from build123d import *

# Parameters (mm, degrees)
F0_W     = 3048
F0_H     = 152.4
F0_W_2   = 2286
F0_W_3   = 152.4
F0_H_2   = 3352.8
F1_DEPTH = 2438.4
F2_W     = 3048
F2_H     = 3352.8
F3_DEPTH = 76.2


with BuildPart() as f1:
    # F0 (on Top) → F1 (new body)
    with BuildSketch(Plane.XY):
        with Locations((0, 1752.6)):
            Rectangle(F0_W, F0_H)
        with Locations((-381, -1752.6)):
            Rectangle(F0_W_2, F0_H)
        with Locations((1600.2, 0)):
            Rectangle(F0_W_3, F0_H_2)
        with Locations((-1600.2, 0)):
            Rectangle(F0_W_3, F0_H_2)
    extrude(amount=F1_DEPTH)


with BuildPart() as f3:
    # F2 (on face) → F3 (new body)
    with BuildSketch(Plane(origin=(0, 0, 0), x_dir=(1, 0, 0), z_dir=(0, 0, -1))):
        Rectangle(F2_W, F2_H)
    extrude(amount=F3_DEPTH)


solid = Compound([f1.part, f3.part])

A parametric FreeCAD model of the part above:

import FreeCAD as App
import Part
import Sketcher
from FreeCAD import Vector
Q = App.Units.Quantity


def add_polygon(sketch, points):
    """Adds a closed chain of lines whose ends are joined by coincident constraints."""
    first, n = sketch.GeometryCount, len(points)
    for a, b in zip(points, points[1:] + points[:1]):
        sketch.addGeometry(Part.LineSegment(App.Vector(*a, 0), App.Vector(*b, 0)), False)
    for i in range(n):
        sketch.addConstraint(Sketcher.Constraint("Coincident", first + i, 2, first + (i + 1) % n, 1))

doc = App.newDocument("Part")
params = doc.addObject("Spreadsheet::Sheet", "Params")
for row, (alias, value) in enumerate([
    ("sketch1_width", "120 in"),
    ("sketch1_width2", "90 in"),
    ("sketch1_width3", "6 in"),
    ("sketch1_height", "132 in"),
    ("pad1_length", "96 in"),
    ("sketch2_width", "120 in"),
    ("sketch2_height", "132 in"),
    ("pad2_length", "3 in"),
], start=1):
    params.set(f"A{row}", alias)
    params.set(f"B{row}", "=" + value)
    params.setAlias(f"B{row}", alias)

body = doc.addObject("PartDesign::Body", "Body")
body.AllowCompound = True

sketch1 = body.newObject("Sketcher::SketchObject", "Sketch")
sketch1.AttachmentSupport = (doc.getObject("XY_Plane"), [""])
sketch1.MapMode = "FlatFace"
add_polygon(sketch1, [(-1524, 1829), (-1524, 1676), (1524, 1676), (1524, 1829)])
add_polygon(sketch1, [(-1524, -1676), (-1524, -1829), (762, -1829), (762, -1676)])
add_polygon(sketch1, [(1524, 1676), (1524, -1676), (1676, -1676), (1676, 1676)])
add_polygon(sketch1, [(-1676, 1676), (-1676, -1676), (-1524, -1676), (-1524, 1676)])
sketch1.addConstraint(Sketcher.Constraint("Vertical", 0))
sketch1.addConstraint(Sketcher.Constraint("Horizontal", 1))
sketch1.addConstraint(Sketcher.Constraint("Vertical", 2))
sketch1.addConstraint(Sketcher.Constraint("Horizontal", 3))
sketch1.addConstraint(Sketcher.Constraint("Vertical", 4))
sketch1.addConstraint(Sketcher.Constraint("Horizontal", 5))
sketch1.addConstraint(Sketcher.Constraint("Vertical", 6))
sketch1.addConstraint(Sketcher.Constraint("Horizontal", 7))
sketch1.addConstraint(Sketcher.Constraint("Vertical", 8))
sketch1.addConstraint(Sketcher.Constraint("Horizontal", 9))
sketch1.addConstraint(Sketcher.Constraint("Vertical", 10))
sketch1.addConstraint(Sketcher.Constraint("Horizontal", 11))
sketch1.addConstraint(Sketcher.Constraint("Vertical", 12))
sketch1.addConstraint(Sketcher.Constraint("Horizontal", 13))
sketch1.addConstraint(Sketcher.Constraint("Vertical", 14))
sketch1.addConstraint(Sketcher.Constraint("Horizontal", 15))
sketch1.addConstraint(Sketcher.Constraint("Coincident", 11, 2, 1, 2))
sketch1.addConstraint(Sketcher.Constraint("Coincident", 13, 2, 7, 2))
sketch1.addConstraint(Sketcher.Constraint("Coincident", 14, 2, 0, 2))
sketch1.addConstraint(Sketcher.Constraint("Symmetric", 2, 2, 4, 2, -1, 1))
sketch1.addConstraint(Sketcher.Constraint("Symmetric", 10, 2, 12, 2, -1, 1))
sketch1.addConstraint(Sketcher.Constraint("Horizontal", 7, 2, 8, 2))
sketch1.addConstraint(Sketcher.Constraint("Equal", 15, 0))
sketch1.addConstraint(Sketcher.Constraint("DistanceX", 1, 1, 1, 2, Q("120 in")))
sketch1.addConstraint(Sketcher.Constraint("DistanceX", 5, 1, 5, 2, Q("90 in")))
sketch1.addConstraint(Sketcher.Constraint("DistanceX", 9, 1, 9, 2, Q("6 in")))
sketch1.addConstraint(Sketcher.Constraint("DistanceY", 8, 2, 8, 1, Q("132 in")))
sketch1.setExpression("Constraints[39]", "Params.sketch1_width")
sketch1.setExpression("Constraints[40]", "Params.sketch1_width2")
sketch1.setExpression("Constraints[41]", "Params.sketch1_width3")
sketch1.setExpression("Constraints[42]", "Params.sketch1_height")
pad1 = body.newObject("PartDesign::Pad", "Pad")
pad1.Profile = sketch1
pad1.setExpression("Length", "Params.pad1_length")
body2 = doc.addObject("PartDesign::Body", "Body001")

sketch2 = body2.newObject("Sketcher::SketchObject", "Sketch001")
sketch2.AttachmentSupport = (doc.getObject("XY_Plane001"), [""])
sketch2.MapMode = "FlatFace"
add_polygon(sketch2, [(-1524, -1676), (-1524, 1676), (1524, 1676), (1524, -1676)])
sketch2.addConstraint(Sketcher.Constraint("Vertical", 0))
sketch2.addConstraint(Sketcher.Constraint("Horizontal", 1))
sketch2.addConstraint(Sketcher.Constraint("Vertical", 2))
sketch2.addConstraint(Sketcher.Constraint("Horizontal", 3))
sketch2.addConstraint(Sketcher.Constraint("Symmetric", 0, 2, 2, 2, -1, 1))
sketch2.addConstraint(Sketcher.Constraint("DistanceX", 1, 1, 1, 2, Q("120 in")))
sketch2.addConstraint(Sketcher.Constraint("DistanceY", 0, 1, 0, 2, Q("132 in")))
sketch2.setExpression("Constraints[9]", "Params.sketch2_width")
sketch2.setExpression("Constraints[10]", "Params.sketch2_height")
pad2 = body2.newObject("PartDesign::Pad", "Pad001")
pad2.Profile = sketch2
pad2.setExpression("Length", "Params.pad2_length")
pad2.Reversed = True

doc.recompute()
